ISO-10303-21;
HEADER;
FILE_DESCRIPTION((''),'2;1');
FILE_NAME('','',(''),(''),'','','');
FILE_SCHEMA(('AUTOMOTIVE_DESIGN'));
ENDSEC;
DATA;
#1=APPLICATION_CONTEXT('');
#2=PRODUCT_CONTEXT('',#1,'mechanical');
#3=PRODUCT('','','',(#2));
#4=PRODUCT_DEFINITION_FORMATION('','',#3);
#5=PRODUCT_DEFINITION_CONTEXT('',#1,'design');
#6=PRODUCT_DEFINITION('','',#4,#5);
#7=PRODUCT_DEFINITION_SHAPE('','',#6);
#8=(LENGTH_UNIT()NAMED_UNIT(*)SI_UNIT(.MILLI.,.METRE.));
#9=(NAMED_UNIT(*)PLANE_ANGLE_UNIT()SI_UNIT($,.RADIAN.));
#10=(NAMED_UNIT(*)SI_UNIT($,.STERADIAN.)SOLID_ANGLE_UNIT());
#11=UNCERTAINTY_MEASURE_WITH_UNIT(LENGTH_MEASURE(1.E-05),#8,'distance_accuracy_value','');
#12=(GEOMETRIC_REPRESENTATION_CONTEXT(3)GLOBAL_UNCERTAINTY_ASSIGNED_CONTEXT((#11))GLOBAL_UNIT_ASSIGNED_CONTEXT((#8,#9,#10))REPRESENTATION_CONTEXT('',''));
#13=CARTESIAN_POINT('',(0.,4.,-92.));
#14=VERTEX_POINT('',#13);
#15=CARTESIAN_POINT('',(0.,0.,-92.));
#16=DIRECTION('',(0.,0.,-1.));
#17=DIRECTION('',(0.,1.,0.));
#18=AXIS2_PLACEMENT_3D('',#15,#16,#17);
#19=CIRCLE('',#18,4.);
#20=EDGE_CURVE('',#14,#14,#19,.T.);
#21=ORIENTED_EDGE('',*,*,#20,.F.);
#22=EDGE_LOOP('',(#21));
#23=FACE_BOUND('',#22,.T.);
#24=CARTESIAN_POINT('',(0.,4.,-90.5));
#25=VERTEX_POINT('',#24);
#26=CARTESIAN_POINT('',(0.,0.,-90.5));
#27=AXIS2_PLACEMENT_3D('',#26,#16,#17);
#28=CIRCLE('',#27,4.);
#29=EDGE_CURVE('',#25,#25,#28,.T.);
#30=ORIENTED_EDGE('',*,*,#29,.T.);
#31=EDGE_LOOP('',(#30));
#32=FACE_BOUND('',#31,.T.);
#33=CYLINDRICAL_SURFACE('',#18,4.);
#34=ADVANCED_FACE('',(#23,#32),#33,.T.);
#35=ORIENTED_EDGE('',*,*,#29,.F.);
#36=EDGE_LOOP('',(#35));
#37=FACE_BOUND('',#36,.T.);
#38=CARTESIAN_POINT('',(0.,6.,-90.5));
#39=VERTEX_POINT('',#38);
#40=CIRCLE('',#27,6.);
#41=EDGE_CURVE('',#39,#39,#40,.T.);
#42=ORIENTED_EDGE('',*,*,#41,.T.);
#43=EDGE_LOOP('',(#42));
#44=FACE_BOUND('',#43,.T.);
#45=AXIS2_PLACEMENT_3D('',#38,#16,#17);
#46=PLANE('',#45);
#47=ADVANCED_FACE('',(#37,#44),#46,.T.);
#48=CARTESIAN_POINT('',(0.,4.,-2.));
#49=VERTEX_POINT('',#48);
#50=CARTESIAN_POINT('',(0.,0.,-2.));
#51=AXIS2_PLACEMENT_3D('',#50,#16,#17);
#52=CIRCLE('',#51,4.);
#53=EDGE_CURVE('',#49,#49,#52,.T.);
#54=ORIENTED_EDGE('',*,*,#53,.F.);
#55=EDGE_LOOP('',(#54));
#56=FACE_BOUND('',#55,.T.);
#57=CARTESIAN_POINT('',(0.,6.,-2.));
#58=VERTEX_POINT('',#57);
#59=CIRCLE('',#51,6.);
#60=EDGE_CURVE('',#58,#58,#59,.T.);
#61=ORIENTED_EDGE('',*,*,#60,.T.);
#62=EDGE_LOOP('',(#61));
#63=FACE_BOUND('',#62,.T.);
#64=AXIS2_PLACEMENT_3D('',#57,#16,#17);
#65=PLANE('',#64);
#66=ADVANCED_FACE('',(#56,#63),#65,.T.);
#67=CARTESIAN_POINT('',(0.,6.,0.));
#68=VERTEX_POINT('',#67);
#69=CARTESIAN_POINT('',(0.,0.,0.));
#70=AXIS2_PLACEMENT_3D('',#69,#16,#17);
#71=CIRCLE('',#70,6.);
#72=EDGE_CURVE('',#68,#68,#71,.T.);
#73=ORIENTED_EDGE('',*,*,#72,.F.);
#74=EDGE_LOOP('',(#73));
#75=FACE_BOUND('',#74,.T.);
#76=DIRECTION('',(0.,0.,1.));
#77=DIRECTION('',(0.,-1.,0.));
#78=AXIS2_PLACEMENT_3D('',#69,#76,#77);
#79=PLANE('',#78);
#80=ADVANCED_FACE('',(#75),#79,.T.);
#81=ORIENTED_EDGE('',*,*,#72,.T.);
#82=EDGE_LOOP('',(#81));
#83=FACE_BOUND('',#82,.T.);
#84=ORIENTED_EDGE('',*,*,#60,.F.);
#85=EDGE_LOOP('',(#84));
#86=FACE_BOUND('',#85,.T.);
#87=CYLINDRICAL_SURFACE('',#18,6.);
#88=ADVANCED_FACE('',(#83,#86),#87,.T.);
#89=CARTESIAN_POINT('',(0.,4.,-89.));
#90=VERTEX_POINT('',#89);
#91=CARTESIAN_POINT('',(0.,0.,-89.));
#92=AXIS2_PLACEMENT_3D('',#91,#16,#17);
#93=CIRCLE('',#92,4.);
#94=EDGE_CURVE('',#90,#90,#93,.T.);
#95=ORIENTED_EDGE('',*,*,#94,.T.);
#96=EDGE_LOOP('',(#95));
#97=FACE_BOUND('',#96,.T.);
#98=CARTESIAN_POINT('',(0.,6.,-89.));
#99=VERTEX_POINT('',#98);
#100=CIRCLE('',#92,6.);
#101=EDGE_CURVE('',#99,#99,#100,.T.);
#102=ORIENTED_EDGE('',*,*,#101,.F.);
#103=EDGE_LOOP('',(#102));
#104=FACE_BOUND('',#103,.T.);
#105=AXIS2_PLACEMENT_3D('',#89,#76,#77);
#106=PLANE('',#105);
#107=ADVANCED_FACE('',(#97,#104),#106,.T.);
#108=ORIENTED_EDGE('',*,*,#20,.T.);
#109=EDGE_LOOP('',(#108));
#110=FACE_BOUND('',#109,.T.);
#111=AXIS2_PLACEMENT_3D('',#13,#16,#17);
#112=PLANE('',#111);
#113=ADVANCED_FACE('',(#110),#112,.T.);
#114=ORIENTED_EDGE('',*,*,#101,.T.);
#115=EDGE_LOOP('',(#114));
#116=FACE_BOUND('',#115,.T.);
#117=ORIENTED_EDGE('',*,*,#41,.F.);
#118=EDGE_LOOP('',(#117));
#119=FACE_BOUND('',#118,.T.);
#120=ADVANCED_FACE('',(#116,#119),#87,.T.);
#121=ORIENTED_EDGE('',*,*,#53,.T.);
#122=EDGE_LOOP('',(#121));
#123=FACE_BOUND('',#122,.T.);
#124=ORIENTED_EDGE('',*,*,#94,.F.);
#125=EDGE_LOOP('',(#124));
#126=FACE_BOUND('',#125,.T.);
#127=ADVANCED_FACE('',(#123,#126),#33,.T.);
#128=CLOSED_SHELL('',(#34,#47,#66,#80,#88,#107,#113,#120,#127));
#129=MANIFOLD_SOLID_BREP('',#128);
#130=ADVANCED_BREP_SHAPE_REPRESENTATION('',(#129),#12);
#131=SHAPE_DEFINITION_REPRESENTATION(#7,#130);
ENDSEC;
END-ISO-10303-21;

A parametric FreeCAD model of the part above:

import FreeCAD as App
import Part
import Sketcher

V = App.Vector

doc = App.newDocument("Part")
body = doc.addObject("PartDesign::Body", "Body")

# Sketch on YZ plane
sketch1 = body.newObject("Sketcher::SketchObject", "Sketch")
sketch1.AttachmentSupport = (doc.getObject("YZ_Plane"), [""])
sketch1.MapMode = "FlatFace"
sketch1.addGeometry([
    Part.LineSegment(V(6, 0, 0), V(0, 0, 0)),  # 0
    Part.LineSegment(V(0, 0, 0), V(0, -92, 0)),  # 1
    Part.LineSegment(V(0, -92, 0), V(4, -92, 0)),  # 2
    Part.LineSegment(V(4, -92, 0), V(4, -90.5, 0)),  # 3
    Part.LineSegment(V(4, -90.5, 0), V(6, -90.5, 0)),  # 4
    Part.LineSegment(V(6, -90.5, 0), V(6, -89, 0)),  # 5
    Part.LineSegment(V(6, -89, 0), V(4, -89, 0)),  # 6
    Part.LineSegment(V(4, -89, 0), V(4, -2, 0)),  # 7
    Part.LineSegment(V(4, -2, 0), V(6, -2, 0)),  # 8
    Part.LineSegment(V(6, -2, 0), V(6, 0, 0)),  # 9
], False)
sketch1.addConstraint([
    Sketcher.Constraint("Coincident", 0, 2, 1, 1),
    Sketcher.Constraint("Coincident", 1, 2, 2, 1),
    Sketcher.Constraint("Coincident", 2, 2, 3, 1),
    Sketcher.Constraint("Coincident", 3, 2, 4, 1),
    Sketcher.Constraint("Coincident", 4, 2, 5, 1),
    Sketcher.Constraint("Coincident", 5, 2, 6, 1),
    Sketcher.Constraint("Coincident", 6, 2, 7, 1),
    Sketcher.Constraint("Coincident", 7, 2, 8, 1),
    Sketcher.Constraint("Coincident", 8, 2, 9, 1),
    Sketcher.Constraint("Coincident", 9, 2, 0, 1),
    Sketcher.Constraint("Horizontal", 0),
    Sketcher.Constraint("Vertical", 1),
    Sketcher.Constraint("Horizontal", 2),
    Sketcher.Constraint("Vertical", 3),
    Sketcher.Constraint("Horizontal", 4),
    Sketcher.Constraint("Vertical", 5),
    Sketcher.Constraint("Horizontal", 6),
    Sketcher.Constraint("Vertical", 7),
    Sketcher.Constraint("Horizontal", 8),
    Sketcher.Constraint("Vertical", 9),
    Sketcher.Constraint("Coincident", 0, 2, -1, 1),
    Sketcher.Constraint("Vertical", 3, 2, 6, 2),
    Sketcher.Constraint("Vertical", 5, 2, 8, 2),
    Sketcher.Constraint("Equal", 3, 5),
    Sketcher.Constraint("Equal", 8, 9),
    Sketcher.Constraint("DistanceX", 0, 2, 0, 1, 6.0),
    Sketcher.Constraint("DistanceX", 2, 1, 2, 2, 4.0),
    Sketcher.Constraint("DistanceY", 1, 2, 1, 1, 92.0),
    Sketcher.Constraint("DistanceY", 7, 1, 7, 2, 87.0),
])
revolution = body.newObject("PartDesign::Revolution", "Revolution")
revolution.Profile = sketch1
revolution.ReferenceAxis = (sketch1, ["V_Axis"])
revolution.Angle = 360

doc.recompute()
